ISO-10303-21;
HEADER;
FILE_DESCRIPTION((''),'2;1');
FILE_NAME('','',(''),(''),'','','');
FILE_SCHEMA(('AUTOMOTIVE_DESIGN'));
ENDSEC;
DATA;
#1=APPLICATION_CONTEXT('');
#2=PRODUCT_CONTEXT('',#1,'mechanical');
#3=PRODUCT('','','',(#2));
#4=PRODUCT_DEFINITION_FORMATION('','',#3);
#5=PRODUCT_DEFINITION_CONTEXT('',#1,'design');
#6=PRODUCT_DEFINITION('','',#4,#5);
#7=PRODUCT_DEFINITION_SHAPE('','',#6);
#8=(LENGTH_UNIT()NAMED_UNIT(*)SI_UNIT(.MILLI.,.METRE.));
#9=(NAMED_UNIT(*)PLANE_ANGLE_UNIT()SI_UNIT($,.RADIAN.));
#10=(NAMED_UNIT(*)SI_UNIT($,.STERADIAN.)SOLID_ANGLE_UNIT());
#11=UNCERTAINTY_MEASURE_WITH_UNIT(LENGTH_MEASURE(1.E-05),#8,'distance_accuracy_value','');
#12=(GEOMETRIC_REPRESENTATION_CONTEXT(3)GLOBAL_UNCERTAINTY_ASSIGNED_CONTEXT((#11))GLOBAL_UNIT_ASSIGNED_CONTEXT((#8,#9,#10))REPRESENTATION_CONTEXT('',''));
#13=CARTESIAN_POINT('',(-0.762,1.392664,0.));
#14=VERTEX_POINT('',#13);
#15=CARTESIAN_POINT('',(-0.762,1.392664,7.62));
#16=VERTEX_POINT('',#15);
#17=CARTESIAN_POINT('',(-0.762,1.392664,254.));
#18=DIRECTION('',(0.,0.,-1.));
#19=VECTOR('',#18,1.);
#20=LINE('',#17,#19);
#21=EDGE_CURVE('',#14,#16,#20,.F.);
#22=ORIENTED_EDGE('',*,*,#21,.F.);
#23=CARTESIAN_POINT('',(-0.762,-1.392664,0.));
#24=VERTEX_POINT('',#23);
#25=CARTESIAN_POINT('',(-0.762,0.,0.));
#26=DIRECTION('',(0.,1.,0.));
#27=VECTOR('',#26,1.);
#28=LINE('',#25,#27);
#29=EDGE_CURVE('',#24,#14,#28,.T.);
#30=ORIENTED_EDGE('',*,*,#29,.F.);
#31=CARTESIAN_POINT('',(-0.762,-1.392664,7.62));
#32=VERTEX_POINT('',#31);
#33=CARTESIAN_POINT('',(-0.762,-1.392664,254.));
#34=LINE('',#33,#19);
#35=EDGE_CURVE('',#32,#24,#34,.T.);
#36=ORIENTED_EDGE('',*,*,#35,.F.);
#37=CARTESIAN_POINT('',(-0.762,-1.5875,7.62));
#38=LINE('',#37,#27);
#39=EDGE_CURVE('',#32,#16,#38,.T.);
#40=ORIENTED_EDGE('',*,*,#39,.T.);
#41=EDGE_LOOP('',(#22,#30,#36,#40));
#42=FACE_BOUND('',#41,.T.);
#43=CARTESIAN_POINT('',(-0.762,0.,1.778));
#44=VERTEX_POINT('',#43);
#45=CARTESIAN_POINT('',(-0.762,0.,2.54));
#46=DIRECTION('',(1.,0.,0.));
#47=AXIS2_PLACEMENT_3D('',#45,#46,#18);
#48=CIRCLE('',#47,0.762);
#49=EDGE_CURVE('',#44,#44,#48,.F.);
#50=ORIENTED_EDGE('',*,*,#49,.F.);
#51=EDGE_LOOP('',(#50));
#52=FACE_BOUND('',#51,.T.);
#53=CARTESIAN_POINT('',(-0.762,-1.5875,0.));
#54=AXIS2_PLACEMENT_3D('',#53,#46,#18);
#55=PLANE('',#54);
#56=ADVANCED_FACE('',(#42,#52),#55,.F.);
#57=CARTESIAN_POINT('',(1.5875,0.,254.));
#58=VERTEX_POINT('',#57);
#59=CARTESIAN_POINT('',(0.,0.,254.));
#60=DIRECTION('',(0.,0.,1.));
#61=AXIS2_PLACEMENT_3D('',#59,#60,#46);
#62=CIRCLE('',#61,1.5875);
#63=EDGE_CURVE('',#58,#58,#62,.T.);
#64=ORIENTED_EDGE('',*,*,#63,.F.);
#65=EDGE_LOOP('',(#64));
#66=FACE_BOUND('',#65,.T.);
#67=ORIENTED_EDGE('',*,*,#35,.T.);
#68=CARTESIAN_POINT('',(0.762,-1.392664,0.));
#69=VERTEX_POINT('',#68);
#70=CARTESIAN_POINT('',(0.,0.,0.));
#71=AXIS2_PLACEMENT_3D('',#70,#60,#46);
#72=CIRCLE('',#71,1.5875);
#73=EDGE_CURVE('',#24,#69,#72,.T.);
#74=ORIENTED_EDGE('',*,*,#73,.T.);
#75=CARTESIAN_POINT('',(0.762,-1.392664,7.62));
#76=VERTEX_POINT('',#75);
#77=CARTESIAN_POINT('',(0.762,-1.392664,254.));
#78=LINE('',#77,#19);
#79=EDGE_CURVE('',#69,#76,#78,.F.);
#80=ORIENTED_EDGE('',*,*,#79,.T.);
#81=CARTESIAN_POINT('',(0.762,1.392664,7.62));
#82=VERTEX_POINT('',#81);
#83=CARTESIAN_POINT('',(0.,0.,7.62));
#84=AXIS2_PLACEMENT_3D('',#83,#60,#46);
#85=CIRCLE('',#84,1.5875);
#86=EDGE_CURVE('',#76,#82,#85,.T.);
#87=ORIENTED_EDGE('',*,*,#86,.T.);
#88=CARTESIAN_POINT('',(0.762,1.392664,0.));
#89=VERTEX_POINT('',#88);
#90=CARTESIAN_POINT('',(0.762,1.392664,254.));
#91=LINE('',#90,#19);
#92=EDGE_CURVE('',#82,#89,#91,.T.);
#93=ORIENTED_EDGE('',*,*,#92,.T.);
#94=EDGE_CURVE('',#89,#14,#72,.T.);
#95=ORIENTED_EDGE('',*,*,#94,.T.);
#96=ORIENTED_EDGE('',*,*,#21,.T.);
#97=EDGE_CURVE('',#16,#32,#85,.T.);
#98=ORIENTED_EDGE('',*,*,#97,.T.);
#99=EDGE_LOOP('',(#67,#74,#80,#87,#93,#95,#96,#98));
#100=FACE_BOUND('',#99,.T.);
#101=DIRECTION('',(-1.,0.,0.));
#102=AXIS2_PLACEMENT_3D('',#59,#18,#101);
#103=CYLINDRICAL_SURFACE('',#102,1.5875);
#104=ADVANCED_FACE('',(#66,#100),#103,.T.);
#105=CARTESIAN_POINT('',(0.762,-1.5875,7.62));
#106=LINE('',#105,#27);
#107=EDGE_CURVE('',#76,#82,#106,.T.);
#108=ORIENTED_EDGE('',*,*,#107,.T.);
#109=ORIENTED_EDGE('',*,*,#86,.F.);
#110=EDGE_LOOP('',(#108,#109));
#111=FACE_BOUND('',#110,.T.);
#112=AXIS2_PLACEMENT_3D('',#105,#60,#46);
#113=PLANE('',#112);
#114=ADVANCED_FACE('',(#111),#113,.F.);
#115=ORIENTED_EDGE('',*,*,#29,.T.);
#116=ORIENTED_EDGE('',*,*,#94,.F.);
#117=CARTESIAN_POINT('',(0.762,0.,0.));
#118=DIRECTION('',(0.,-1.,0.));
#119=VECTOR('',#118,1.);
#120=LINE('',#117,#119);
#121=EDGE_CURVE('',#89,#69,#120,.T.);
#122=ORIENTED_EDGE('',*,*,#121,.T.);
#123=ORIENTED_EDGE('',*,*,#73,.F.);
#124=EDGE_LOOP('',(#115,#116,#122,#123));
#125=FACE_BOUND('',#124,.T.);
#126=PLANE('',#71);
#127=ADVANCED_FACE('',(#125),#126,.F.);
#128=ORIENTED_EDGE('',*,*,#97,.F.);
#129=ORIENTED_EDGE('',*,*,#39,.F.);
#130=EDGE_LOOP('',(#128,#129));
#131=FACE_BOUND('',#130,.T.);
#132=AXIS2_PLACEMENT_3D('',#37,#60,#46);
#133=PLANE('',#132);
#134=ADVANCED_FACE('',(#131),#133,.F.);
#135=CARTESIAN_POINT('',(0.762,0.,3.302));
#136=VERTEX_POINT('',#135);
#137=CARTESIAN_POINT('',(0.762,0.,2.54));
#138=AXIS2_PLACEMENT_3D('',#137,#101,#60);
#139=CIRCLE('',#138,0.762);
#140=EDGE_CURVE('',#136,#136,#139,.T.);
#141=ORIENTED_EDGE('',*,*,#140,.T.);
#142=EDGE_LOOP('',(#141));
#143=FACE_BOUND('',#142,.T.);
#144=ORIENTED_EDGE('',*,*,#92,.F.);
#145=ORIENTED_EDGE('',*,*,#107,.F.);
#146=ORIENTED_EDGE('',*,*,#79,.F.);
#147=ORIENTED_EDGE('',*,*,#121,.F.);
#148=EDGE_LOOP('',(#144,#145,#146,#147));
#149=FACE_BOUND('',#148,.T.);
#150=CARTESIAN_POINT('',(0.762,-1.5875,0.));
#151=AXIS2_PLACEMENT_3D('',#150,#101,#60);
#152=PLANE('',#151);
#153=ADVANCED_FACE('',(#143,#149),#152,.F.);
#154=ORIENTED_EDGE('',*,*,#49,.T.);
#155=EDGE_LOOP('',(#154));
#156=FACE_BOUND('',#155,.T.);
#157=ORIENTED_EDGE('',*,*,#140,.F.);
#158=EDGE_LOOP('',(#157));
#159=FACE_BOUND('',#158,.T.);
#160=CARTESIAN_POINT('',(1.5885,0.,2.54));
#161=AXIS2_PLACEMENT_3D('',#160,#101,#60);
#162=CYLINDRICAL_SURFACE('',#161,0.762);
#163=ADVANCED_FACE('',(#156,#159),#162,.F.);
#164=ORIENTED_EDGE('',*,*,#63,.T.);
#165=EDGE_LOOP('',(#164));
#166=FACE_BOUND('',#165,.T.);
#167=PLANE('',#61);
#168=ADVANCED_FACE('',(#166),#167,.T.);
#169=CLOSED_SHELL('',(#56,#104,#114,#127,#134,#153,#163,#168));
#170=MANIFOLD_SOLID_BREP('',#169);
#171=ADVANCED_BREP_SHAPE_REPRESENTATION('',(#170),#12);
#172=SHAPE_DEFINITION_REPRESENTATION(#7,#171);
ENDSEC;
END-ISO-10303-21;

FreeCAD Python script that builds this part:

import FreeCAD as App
import Part
import Sketcher
from FreeCAD import Vector
Q = App.Units.Quantity


def add_polygon(sketch, points):
    """Adds a closed chain of lines whose ends are joined by coincident constraints."""
    first, n = sketch.GeometryCount, len(points)
    for a, b in zip(points, points[1:] + points[:1]):
        sketch.addGeometry(Part.LineSegment(App.Vector(*a, 0), App.Vector(*b, 0)), False)
    for i in range(n):
        sketch.addConstraint(Sketcher.Constraint("Coincident", first + i, 2, first + (i + 1) % n, 1))

doc = App.newDocument("Part")
body = doc.addObject("PartDesign::Body", "Body")

sketch1 = doc.addObject("Sketcher::SketchObject", "Sketch")
body.addObject(sketch1)
sketch1.AttachmentSupport = (doc.XY_Plane, [""])
sketch1.MapMode = "FlatFace"
sketch1.addGeometry(Part.Circle(Vector(0, 0, 0), Vector(0, 0, 1), 1.6), False)
sketch1.addConstraint([
    Sketcher.Constraint("Coincident", 0, 3, -1, 1),
    Sketcher.Constraint("Diameter", 0, Q("0.125 in")),
])
pad1 = doc.addObject("PartDesign::Pad", "Pad")
body.addObject(pad1)
pad1.Profile = sketch1
pad1.Length = Q("10 in")

sketch2 = doc.addObject("Sketcher::SketchObject", "Sketch001")
body.addObject(sketch2)
sketch2.AttachmentSupport = (doc.XZ_Plane, [""])
sketch2.MapMode = "FlatFace"
add_polygon(sketch2, [(0.8, 0), (0.8, 7.6), (1.6, 7.6), (1.6, 0)])
add_polygon(sketch2, [(-1.6, 0), (-1.6, 7.6), (-0.8, 7.6), (-0.8, 0)])
sketch2.addConstraint([
    Sketcher.Constraint("Vertical", 0),
    Sketcher.Constraint("Horizontal", 1),
    Sketcher.Constraint("Vertical", 2),
    Sketcher.Constraint("Horizontal", 3),
    Sketcher.Constraint("Vertical", 4),
    Sketcher.Constraint("Horizontal", 5),
    Sketcher.Constraint("Vertical", 6),
    Sketcher.Constraint("Horizontal", 7),
    Sketcher.Constraint("Symmetric", 3, 2, 6, 2, -1, 1),
    Sketcher.Constraint("Symmetric", 1, 2, 4, 2, -2),
    Sketcher.Constraint("PointOnObject", 2, 2, -1),
    Sketcher.Constraint("DistanceY", 0, 1, 0, 2, Q("0.3 in")),
    Sketcher.Constraint("DistanceX", -1, 1, 0, 2, Q("0.03 in")),
    Sketcher.Constraint("DistanceX", 1, 1, 1, 2, Q("0.0325 in")),
])
pocket1 = doc.addObject("PartDesign::Pocket", "Pocket")
body.addObject(pocket1)
pocket1.Profile = sketch2
pocket1.Type = "ThroughAll"
pocket1.Midplane = True

sketch3 = doc.addObject("Sketcher::SketchObject", "Sketch002")
body.addObject(sketch3)
sketch3.AttachmentSupport = (doc.YZ_Plane, [""])
sketch3.MapMode = "FlatFace"
sketch3.addGeometry(Part.Circle(Vector(0, 2.5, 0), Vector(0, 0, 1), 0.8), False)
sketch3.addConstraint([
    Sketcher.Constraint("PointOnObject", 0, 3, -2),
    Sketcher.Constraint("Diameter", 0, Q("0.06 in")),
    Sketcher.Constraint("DistanceY", -1, 1, 0, 3, Q("0.1 in")),
])
pocket2 = doc.addObject("PartDesign::Pocket", "Pocket001")
body.addObject(pocket2)
pocket2.Profile = sketch3
pocket2.Type = "UpToFirst"

sketch4 = doc.addObject("Sketcher::SketchObject", "Sketch003")
body.addObject(sketch4)
sketch4.AttachmentSupport = (doc.YZ_Plane, [""])
sketch4.MapMode = "FlatFace"
sketch4.addGeometry(Part.Circle(Vector(0, 2.5, 0), Vector(0, 0, 1), 0.8), False)
sketch4.addConstraint([
    Sketcher.Constraint("PointOnObject", 0, 3, -2),
    Sketcher.Constraint("Diameter", 0, Q("0.06 in")),
    Sketcher.Constraint("DistanceY", -1, 1, 0, 3, Q("0.1 in")),
])
pocket3 = doc.addObject("PartDesign::Pocket", "Pocket002")
body.addObject(pocket3)
pocket3.Profile = sketch4
pocket3.Type = "UpToFirst"
pocket3.Reversed = True

doc.recompute()
